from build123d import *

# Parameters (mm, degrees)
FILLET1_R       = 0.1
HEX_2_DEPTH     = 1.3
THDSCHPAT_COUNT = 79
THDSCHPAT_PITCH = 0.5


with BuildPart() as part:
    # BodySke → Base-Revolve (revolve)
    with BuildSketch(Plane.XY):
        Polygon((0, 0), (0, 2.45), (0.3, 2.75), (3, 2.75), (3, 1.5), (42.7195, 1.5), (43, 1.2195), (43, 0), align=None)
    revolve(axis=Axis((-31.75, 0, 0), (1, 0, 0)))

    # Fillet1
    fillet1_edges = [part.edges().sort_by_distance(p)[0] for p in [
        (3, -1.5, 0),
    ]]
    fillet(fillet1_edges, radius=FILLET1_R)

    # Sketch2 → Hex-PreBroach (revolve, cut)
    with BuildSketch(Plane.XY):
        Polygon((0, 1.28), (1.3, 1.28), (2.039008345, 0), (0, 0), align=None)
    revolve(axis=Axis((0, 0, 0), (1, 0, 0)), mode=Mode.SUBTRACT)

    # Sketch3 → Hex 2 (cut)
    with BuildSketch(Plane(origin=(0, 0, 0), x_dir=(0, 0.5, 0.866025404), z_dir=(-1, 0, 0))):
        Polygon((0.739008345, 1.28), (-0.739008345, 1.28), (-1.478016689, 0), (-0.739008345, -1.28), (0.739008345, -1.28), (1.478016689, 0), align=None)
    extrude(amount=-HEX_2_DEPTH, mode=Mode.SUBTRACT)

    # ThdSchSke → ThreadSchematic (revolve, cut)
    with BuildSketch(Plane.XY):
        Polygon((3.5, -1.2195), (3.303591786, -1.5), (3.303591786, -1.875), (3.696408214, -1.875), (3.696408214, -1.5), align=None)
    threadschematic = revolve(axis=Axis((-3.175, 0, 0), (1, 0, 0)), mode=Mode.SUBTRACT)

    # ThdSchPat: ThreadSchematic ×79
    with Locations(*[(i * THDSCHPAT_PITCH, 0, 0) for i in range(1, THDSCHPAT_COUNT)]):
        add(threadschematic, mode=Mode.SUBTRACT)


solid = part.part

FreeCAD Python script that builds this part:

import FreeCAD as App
import Part
import Sketcher
Q = App.Units.Quantity


def edges_at(feature, points):
    """Names of the edges that pass closest to the given points."""
    edges = feature.Shape.Edges
    near = lambda p: min(range(len(edges)), key=lambda i: edges[i].distToShape(Part.Vertex(*p))[0])
    return sorted({f"Edge{near(p) + 1}" for p in points})


def add_polygon(sketch, points):
    """Adds a closed chain of lines whose ends are joined by coincident constraints."""
    first, n = sketch.GeometryCount, len(points)
    for a, b in zip(points, points[1:] + points[:1]):
        sketch.addGeometry(Part.LineSegment(App.Vector(*a, 0), App.Vector(*b, 0)), False)
    for i in range(n):
        sketch.addConstraint(Sketcher.Constraint("Coincident", first + i, 2, first + (i + 1) % n, 1))

doc = App.newDocument("Part")
params = doc.addObject("Spreadsheet::Sheet", "Params")
for row, (alias, value) in enumerate([
    ("sketch1_width", "43 mm"),
    ("sketch1_width2", "2.7 mm"),
    ("sketch1_height", "2.45 mm"),
    ("sketch1_height2", "1.25 mm"),
    ("revolution_angle", "360 deg"),
    ("fillet_radius", "0.1 mm"),
    ("sketch2_width", "1.3 mm"),
    ("sketch2_height", "1.28 mm"),
    ("groove_angle", "360 deg"),
    ("pocket1_length", "1.3 mm"),
    ("groove2_angle", "360 deg"),
    ("linearpattern_pitch", "0.5 mm"),
], start=1):
    params.set(f"A{row}", alias)
    params.set(f"B{row}", "=" + value)
    params.setAlias(f"B{row}", alias)

body = doc.addObject("PartDesign::Body", "Body")

# Sketch on XY plane
sketch1 = body.newObject("Sketcher::SketchObject", "Sketch")
sketch1.AttachmentSupport = (doc.getObject("XY_Plane"), [""])
sketch1.MapMode = "FlatFace"
add_polygon(sketch1, [(0, 2.45), (0, 0), (43, 0), (43, 1.2195), (42.7195, 1.5), (3, 1.5), (3, 2.75), (0.3, 2.75)])  # lines 0-7
sketch1.addConstraint(Sketcher.Constraint("Vertical", 0))
sketch1.addConstraint(Sketcher.Constraint("Horizontal", 1))
sketch1.addConstraint(Sketcher.Constraint("Vertical", 2))
sketch1.addConstraint(Sketcher.Constraint("Horizontal", 4))
sketch1.addConstraint(Sketcher.Constraint("Vertical", 5))
sketch1.addConstraint(Sketcher.Constraint("Horizontal", 6))
sketch1.addConstraint(Sketcher.Constraint("Coincident", 0, 2, -1, 1))
sketch1.addConstraint(Sketcher.Constraint("Perpendicular", 3, 7))
sketch1.addConstraint(Sketcher.Constraint("DistanceX", 1, 1, 1, 2, 43.0))
sketch1.addConstraint(Sketcher.Constraint("Angle", 3, Q("135 deg")))
sketch1.addConstraint(Sketcher.Constraint("DistanceX", 6, 2, 6, 1, 2.7))
sketch1.addConstraint(Sketcher.Constraint("DistanceX", -1, 1, 4, 2, 3.0))
sketch1.addConstraint(Sketcher.Constraint("DistanceY", 0, 2, 0, 1, 2.45))
sketch1.addConstraint(Sketcher.Constraint("DistanceY", 5, 1, 5, 2, 1.25))
sketch1.addConstraint(Sketcher.Constraint("DistanceX", 4, 2, 4, 1, 39.7195))
sketch1.setExpression("Constraints[16]", "Params.sketch1_width")
sketch1.setExpression("Constraints[18]", "Params.sketch1_width2")
sketch1.setExpression("Constraints[20]", "Params.sketch1_height")
sketch1.setExpression("Constraints[21]", "Params.sketch1_height2")
revolution = body.newObject("PartDesign::Revolution", "Revolution")
revolution.Profile = sketch1
revolution.ReferenceAxis = (sketch1, ["H_Axis"])
revolution.setExpression("Angle", "Params.revolution_angle")
doc.recompute()

fillet = body.newObject("PartDesign::Fillet", "Fillet")
fillet.Base = (revolution, edges_at(revolution, [(3, -1.5, 0)]))
fillet.setExpression("Radius", "Params.fillet_radius")

# Sketch on XY plane
sketch2 = body.newObject("Sketcher::SketchObject", "Sketch001")
sketch2.AttachmentSupport = (doc.getObject("XY_Plane"), [""])
sketch2.MapMode = "FlatFace"
add_polygon(sketch2, [(1.3, 1.28), (0, 1.28), (0, 0), (2.039008, 0)])  # lines 0-3
sketch2.addConstraint(Sketcher.Constraint("Horizontal", 0))
sketch2.addConstraint(Sketcher.Constraint("Vertical", 1))
sketch2.addConstraint(Sketcher.Constraint("Horizontal", 2))
sketch2.addConstraint(Sketcher.Constraint("Coincident", 1, 2, -1, 1))
sketch2.addConstraint(Sketcher.Constraint("Angle", 3, Q("120 deg")))
sketch2.addConstraint(Sketcher.Constraint("DistanceX", 0, 2, 0, 1, 1.3))
sketch2.addConstraint(Sketcher.Constraint("DistanceY", 1, 2, 1, 1, 1.28))
sketch2.setExpression("Constraints[9]", "Params.sketch2_width")
sketch2.setExpression("Constraints[10]", "Params.sketch2_height")
groove = body.newObject("PartDesign::Groove", "Groove")
groove.Profile = sketch2
groove.ReferenceAxis = (sketch2, ["H_Axis"])
groove.setExpression("Angle", "Params.groove_angle")

# Sketch on YZ plane
sketch3 = body.newObject("Sketcher::SketchObject", "Sketch002")
sketch3.AttachmentSupport = (doc.getObject("YZ_Plane"), [""])
sketch3.MapMode = "FlatFace"
add_polygon(sketch3, [(1.478017, 0), (0.739008, -1.28), (-0.739008, -1.28), (-1.478017, 0), (-0.739008, 1.28), (0.739008, 1.28)])  # lines 0-5
sketch3.addConstraint(Sketcher.Constraint("Horizontal", 1))
sketch3.addConstraint(Sketcher.Constraint("Horizontal", 4))
sketch3.addConstraint(Sketcher.Constraint("Symmetric", 0, 2, 3, 2, -1, 1))
sketch3.addConstraint(Sketcher.Constraint("Symmetric", 2, 2, 5, 2, -1, 1))
sketch3.addConstraint(Sketcher.Constraint("PointOnObject", 2, 2, -1))
sketch3.addConstraint(Sketcher.Constraint("Parallel", 2, 5))
sketch3.addConstraint(Sketcher.Constraint("Vertical", 1, 2, 3, 2))
sketch3.addConstraint(Sketcher.Constraint("Angle", 0, Q("-120 deg")))
sketch3.addConstraint(Sketcher.Constraint("DistanceY", 0, 2, -1, 1, 1.28))
sketch3.addConstraint(Sketcher.Constraint("DistanceX", 1, 2, 1, 1, 1.478017))
pocket1 = body.newObject("PartDesign::Pocket", "Pocket")
pocket1.Profile = sketch3
pocket1.setExpression("Length", "Params.pocket1_length")
pocket1.Reversed = True

# Sketch on XY plane
sketch4 = body.newObject("Sketcher::SketchObject", "Sketch003")
sketch4.AttachmentSupport = (doc.getObject("XY_Plane"), [""])
sketch4.MapMode = "FlatFace"
add_polygon(sketch4, [(3.5, -1.2195), (3.303592, -1.5), (3.303592, -1.875), (3.696408, -1.875), (3.696408, -1.5)])  # lines 0-4
sketch4.addConstraint(Sketcher.Constraint("Vertical", 1))
sketch4.addConstraint(Sketcher.Constraint("Horizontal", 2))
sketch4.addConstraint(Sketcher.Constraint("Vertical", 3))
sketch4.addConstraint(Sketcher.Constraint("Horizontal", 0, 2, 3, 2))
sketch4.addConstraint(Sketcher.Constraint("Equal", 0, 4))
sketch4.addConstraint(Sketcher.Constraint("Angle", 0, Q("-125 deg")))
sketch4.addConstraint(Sketcher.Constraint("DistanceY", 0, 2, -1, 1, 1.5))
sketch4.addConstraint(Sketcher.Constraint("DistanceX", -1, 1, 4, 2, 3.5))
sketch4.addConstraint(Sketcher.Constraint("DistanceY", 1, 2, 1, 1, 0.375))
sketch4.addConstraint(Sketcher.Constraint("DistanceY", 4, 2, -1, 1, 1.2195))
groove2 = body.newObject("PartDesign::Groove", "Groove001")
groove2.Profile = sketch4
groove2.ReferenceAxis = (sketch4, ["H_Axis"])
groove2.setExpression("Angle", "Params.groove2_angle")
doc.recompute()

linearpattern = body.newObject("PartDesign::LinearPattern", "LinearPattern")
linearpattern.Originals = [groove2]
linearpattern.Direction = (doc.getObject("X_Axis"), [""])
linearpattern.Mode = "offset"
linearpattern.setExpression("Offset", "Params.linearpattern_pitch")
linearpattern.Occurrences = 79
body.Tip = linearpattern

doc.recompute()
